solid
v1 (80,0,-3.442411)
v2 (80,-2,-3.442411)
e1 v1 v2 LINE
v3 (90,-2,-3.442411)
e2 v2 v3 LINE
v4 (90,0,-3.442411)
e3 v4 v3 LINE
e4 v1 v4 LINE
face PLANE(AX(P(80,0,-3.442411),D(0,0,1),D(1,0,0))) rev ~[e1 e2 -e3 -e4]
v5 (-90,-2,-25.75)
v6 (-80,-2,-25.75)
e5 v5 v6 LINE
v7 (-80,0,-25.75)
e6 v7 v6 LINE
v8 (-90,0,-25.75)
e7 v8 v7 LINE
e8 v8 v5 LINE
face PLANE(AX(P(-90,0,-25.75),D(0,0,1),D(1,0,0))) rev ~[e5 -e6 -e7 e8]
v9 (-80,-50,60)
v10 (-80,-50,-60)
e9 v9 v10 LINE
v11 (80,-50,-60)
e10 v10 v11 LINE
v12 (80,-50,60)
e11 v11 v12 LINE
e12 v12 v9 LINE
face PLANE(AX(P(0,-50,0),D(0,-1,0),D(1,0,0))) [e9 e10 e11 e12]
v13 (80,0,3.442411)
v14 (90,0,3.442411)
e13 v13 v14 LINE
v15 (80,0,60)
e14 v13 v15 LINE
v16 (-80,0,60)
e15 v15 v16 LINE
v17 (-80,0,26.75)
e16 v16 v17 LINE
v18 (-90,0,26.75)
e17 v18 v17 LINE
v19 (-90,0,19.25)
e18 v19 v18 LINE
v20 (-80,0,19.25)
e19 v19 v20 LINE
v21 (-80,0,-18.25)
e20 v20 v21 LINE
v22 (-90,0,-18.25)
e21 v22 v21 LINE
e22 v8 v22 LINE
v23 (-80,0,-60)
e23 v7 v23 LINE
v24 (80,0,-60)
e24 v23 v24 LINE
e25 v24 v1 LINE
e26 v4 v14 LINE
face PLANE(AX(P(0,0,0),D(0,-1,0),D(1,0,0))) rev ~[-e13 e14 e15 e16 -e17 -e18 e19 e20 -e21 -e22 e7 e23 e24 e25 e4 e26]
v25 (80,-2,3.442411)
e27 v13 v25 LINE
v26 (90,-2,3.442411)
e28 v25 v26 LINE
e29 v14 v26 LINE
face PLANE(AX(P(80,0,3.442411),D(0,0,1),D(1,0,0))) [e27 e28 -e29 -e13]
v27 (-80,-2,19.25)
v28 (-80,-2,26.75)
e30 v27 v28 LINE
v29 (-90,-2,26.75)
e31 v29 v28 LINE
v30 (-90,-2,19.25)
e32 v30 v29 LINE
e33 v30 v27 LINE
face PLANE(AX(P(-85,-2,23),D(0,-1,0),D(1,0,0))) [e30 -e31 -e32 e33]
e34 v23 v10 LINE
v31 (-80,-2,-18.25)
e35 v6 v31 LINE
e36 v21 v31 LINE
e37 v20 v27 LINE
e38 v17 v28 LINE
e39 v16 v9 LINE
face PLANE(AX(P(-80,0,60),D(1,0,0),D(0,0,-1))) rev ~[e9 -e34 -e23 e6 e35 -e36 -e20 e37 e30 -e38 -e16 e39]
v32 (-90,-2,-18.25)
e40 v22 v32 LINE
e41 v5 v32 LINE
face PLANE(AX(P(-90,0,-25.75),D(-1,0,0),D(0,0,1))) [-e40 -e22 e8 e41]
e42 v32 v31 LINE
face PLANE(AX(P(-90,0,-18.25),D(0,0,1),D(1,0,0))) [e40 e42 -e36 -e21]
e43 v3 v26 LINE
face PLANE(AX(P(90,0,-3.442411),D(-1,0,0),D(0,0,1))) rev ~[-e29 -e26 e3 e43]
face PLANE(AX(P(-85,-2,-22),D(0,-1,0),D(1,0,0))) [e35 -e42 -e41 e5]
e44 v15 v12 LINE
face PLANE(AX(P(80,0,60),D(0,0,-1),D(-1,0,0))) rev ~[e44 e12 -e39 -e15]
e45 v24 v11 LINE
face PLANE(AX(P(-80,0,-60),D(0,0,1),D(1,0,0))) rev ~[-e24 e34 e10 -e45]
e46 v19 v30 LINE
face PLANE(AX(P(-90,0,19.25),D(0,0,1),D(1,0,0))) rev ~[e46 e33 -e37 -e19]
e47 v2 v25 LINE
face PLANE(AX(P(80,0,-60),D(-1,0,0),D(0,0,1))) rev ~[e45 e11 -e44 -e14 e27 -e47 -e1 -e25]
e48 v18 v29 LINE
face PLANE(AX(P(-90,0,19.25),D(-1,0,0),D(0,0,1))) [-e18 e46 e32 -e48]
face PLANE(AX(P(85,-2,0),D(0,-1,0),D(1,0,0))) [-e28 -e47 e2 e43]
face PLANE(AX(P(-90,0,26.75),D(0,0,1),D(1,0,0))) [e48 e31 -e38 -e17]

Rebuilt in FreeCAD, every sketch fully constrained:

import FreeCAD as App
import Part
import Sketcher

V = App.Vector

doc = App.newDocument("Part")
body = doc.addObject("PartDesign::Body", "Body")

sketch1 = body.newObject("Sketcher::SketchObject", "Sketch")
sketch1.AttachmentSupport = (doc.getObject("XZ_Plane"), [""])
sketch1.MapMode = "FlatFace"
sketch1.addGeometry(Part.LineSegment(V(80, 60, 0), V(-80, 60, 0)), False)
sketch1.addGeometry(Part.LineSegment(V(-80, 60, 0), V(-80, -60, 0)), False)
sketch1.addGeometry(Part.LineSegment(V(-80, -60, 0), V(80, -60, 0)), False)
sketch1.addGeometry(Part.LineSegment(V(80, -60, 0), V(80, 60, 0)), False)
sketch1.addConstraint(Sketcher.Constraint("Coincident", 0, 2, 1, 1))
sketch1.addConstraint(Sketcher.Constraint("Coincident", 1, 2, 2, 1))
sketch1.addConstraint(Sketcher.Constraint("Coincident", 2, 2, 3, 1))
sketch1.addConstraint(Sketcher.Constraint("Coincident", 3, 2, 0, 1))
sketch1.addConstraint(Sketcher.Constraint("Horizontal", 0))
sketch1.addConstraint(Sketcher.Constraint("Vertical", 1))
sketch1.addConstraint(Sketcher.Constraint("Horizontal", 2))
sketch1.addConstraint(Sketcher.Constraint("Vertical", 3))
sketch1.addConstraint(Sketcher.Constraint("Symmetric", 0, 2, 2, 2, -1, 1))
sketch1.addConstraint(Sketcher.Constraint("DistanceX", 0, 2, 0, 1, 160.0))
sketch1.addConstraint(Sketcher.Constraint("DistanceY", 1, 2, 1, 1, 120.0))
pad1 = body.newObject("PartDesign::Pad", "Pad")
pad1.Profile = sketch1
pad1.Length = 50

sketch2 = body.newObject("Sketcher::SketchObject", "Sketch001")
sketch2.AttachmentSupport = (doc.getObject("XZ_Plane"), [""])
sketch2.MapMode = "FlatFace"
sketch2.addGeometry(Part.LineSegment(V(-90, -18, 0), V(-90, -26, 0)), False)
sketch2.addGeometry(Part.LineSegment(V(-90, -26, 0), V(-80, -26, 0)), False)
sketch2.addGeometry(Part.LineSegment(V(-80, -26, 0), V(-80, -18, 0)), False)
sketch2.addGeometry(Part.LineSegment(V(-80, -18, 0), V(-90, -18, 0)), False)
sketch2.addGeometry(Part.LineSegment(V(-90, 27, 0), V(-90, 19, 0)), False)
sketch2.addGeometry(Part.LineSegment(V(-90, 19, 0), V(-80, 19, 0)), False)
sketch2.addGeometry(Part.LineSegment(V(-80, 19, 0), V(-80, 27, 0)), False)
sketch2.addGeometry(Part.LineSegment(V(-80, 27, 0), V(-90, 27, 0)), False)
sketch2.addGeometry(Part.LineSegment(V(80, 3, 0), V(80, -3, 0)), False)
sketch2.addGeometry(Part.LineSegment(V(80, -3, 0), V(90, -3, 0)), False)
sketch2.addGeometry(Part.LineSegment(V(90, -3, 0), V(90, 3, 0)), False)
sketch2.addGeometry(Part.LineSegment(V(90, 3, 0), V(80, 3, 0)), False)
sketch2.addConstraint(Sketcher.Constraint("Coincident", 0, 2, 1, 1))
sketch2.addConstraint(Sketcher.Constraint("Coincident", 1, 2, 2, 1))
sketch2.addConstraint(Sketcher.Constraint("Coincident", 2, 2, 3, 1))
sketch2.addConstraint(Sketcher.Constraint("Coincident", 3, 2, 0, 1))
sketch2.addConstraint(Sketcher.Constraint("Coincident", 4, 2, 5, 1))
sketch2.addConstraint(Sketcher.Constraint("Coincident", 5, 2, 6, 1))
sketch2.addConstraint(Sketcher.Constraint("Coincident", 6, 2, 7, 1))
sketch2.addConstraint(Sketcher.Constraint("Coincident", 7, 2, 4, 1))
sketch2.addConstraint(Sketcher.Constraint("Coincident", 8, 2, 9, 1))
sketch2.addConstraint(Sketcher.Constraint("Coincident", 9, 2, 10, 1))
sketch2.addConstraint(Sketcher.Constraint("Coincident", 10, 2, 11, 1))
sketch2.addConstraint(Sketcher.Constraint("Coincident", 11, 2, 8, 1))
sketch2.addConstraint(Sketcher.Constraint("Vertical", 0))
sketch2.addConstraint(Sketcher.Constraint("Horizontal", 1))
sketch2.addConstraint(Sketcher.Constraint("Vertical", 2))
sketch2.addConstraint(Sketcher.Constraint("Horizontal", 3))
sketch2.addConstraint(Sketcher.Constraint("Vertical", 4))
sketch2.addConstraint(Sketcher.Constraint("Horizontal", 5))
sketch2.addConstraint(Sketcher.Constraint("Vertical", 6))
sketch2.addConstraint(Sketcher.Constraint("Horizontal", 7))
sketch2.addConstraint(Sketcher.Constraint("Vertical", 8))
sketch2.addConstraint(Sketcher.Constraint("Horizontal", 9))
sketch2.addConstraint(Sketcher.Constraint("Vertical", 10))
sketch2.addConstraint(Sketcher.Constraint("Horizontal", 11))
sketch2.addConstraint(Sketcher.Constraint("Vertical", 3, 2, 4, 2))
sketch2.addConstraint(Sketcher.Constraint("Vertical", 2, 2, 5, 2))
sketch2.addConstraint(Sketcher.Constraint("Equal", 7, 9))
sketch2.addConstraint(Sketcher.Constraint("Equal", 2, 4))
sketch2.addConstraint(Sketcher.Constraint("DistanceX", 1, 1, 1, 2, 10.0))
sketch2.addConstraint(Sketcher.Constraint("DistanceY", 0, 2, 0, 1, 7.5))
sketch2.addConstraint(Sketcher.Constraint("DistanceX", 0, 2, -1, 1, 90.0))
sketch2.addConstraint(Sketcher.Constraint("DistanceX", -1, 1, 8, 2, 80.0))
sketch2.addConstraint(Sketcher.Constraint("DistanceY", 0, 2, 4, 2, 45.0))
sketch2.addConstraint(Sketcher.Constraint("DistanceY", 0, 2, -1, 1, 25.75))
sketch2.addConstraint(Sketcher.Constraint("DistanceY", 8, 2, 8, 1, 6.884822))
sketch2.addConstraint(Sketcher.Constraint("DistanceY", 8, 2, -1, 1, 3.442411))
pad2 = body.newObject("PartDesign::Pad", "Pad001")
pad2.Profile = sketch2
pad2.Length = 2

doc.recompute()
